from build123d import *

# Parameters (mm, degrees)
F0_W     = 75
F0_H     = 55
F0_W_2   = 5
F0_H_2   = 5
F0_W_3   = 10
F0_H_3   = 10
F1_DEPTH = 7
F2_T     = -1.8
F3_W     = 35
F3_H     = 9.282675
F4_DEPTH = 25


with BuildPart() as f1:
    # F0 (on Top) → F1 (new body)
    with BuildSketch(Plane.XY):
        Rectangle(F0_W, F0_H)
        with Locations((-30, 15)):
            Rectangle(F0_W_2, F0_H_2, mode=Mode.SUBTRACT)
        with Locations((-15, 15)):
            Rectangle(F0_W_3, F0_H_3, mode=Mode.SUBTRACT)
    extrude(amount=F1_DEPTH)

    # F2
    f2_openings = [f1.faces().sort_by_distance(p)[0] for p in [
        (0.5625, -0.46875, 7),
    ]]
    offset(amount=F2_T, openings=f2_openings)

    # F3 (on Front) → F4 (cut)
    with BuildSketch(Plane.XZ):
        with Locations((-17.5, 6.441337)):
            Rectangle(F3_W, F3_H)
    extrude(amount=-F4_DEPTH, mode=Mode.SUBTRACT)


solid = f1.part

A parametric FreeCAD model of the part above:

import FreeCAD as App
import Part
import Sketcher

V = App.Vector
Q = App.Units.Quantity


def faces_at(feature, points):
    """Names of the faces that lie closest to the given points."""
    faces = feature.Shape.Faces
    near = lambda p: min(range(len(faces)), key=lambda i: faces[i].distToShape(Part.Vertex(*p))[0])
    return sorted({f"Face{near(p) + 1}" for p in points})


def add_polygon(sketch, points):
    """Adds a closed chain of lines whose ends are joined by coincident constraints."""
    first, n = sketch.GeometryCount, len(points)
    for a, b in zip(points, points[1:] + points[:1]):
        sketch.addGeometry(Part.LineSegment(App.Vector(*a, 0), App.Vector(*b, 0)), False)
    for i in range(n):
        sketch.addConstraint(Sketcher.Constraint("Coincident", first + i, 2, first + (i + 1) % n, 1))

doc = App.newDocument("Part")
body = doc.addObject("PartDesign::Body", "Body")

# Sketch on XY plane
sketch1 = doc.addObject("Sketcher::SketchObject", "Sketch")
body.addObject(sketch1)
sketch1.AttachmentSupport = (doc.XY_Plane, [""])
sketch1.MapMode = "FlatFace"
add_polygon(sketch1, [(-38, 28), (-38, -28), (38, -28), (38, 28)])  # lines 0-3
add_polygon(sketch1, [(-28, 12), (-32, 12), (-32, 18), (-28, 18)])  # lines 4-7
add_polygon(sketch1, [(-10, 10), (-20, 10), (-20, 20), (-10, 20)])  # lines 8-11
sketch1.addConstraint(Sketcher.Constraint("Vertical", 0))
sketch1.addConstraint(Sketcher.Constraint("Horizontal", 1))
sketch1.addConstraint(Sketcher.Constraint("Vertical", 2))
sketch1.addConstraint(Sketcher.Constraint("Horizontal", 3))
sketch1.addConstraint(Sketcher.Constraint("Horizontal", 4))
sketch1.addConstraint(Sketcher.Constraint("Vertical", 5))
sketch1.addConstraint(Sketcher.Constraint("Horizontal", 6))
sketch1.addConstraint(Sketcher.Constraint("Vertical", 7))
sketch1.addConstraint(Sketcher.Constraint("Horizontal", 8))
sketch1.addConstraint(Sketcher.Constraint("Vertical", 9))
sketch1.addConstraint(Sketcher.Constraint("Horizontal", 10))
sketch1.addConstraint(Sketcher.Constraint("Vertical", 11))
sketch1.addConstraint(Sketcher.Constraint("Symmetric", 0, 2, 2, 2, -1, 1))
sketch1.addConstraint(Sketcher.Constraint("Equal", 6, 5))
sketch1.addConstraint(Sketcher.Constraint("Equal", 10, 9))
sketch1.addConstraint(Sketcher.Constraint("DistanceX", 1, 1, 1, 2, Q("75 mm")))
sketch1.addConstraint(Sketcher.Constraint("DistanceX", 4, 2, 4, 1, Q("5 mm")))
sketch1.addConstraint(Sketcher.Constraint("DistanceX", 8, 2, 8, 1, Q("10 mm")))
sketch1.addConstraint(Sketcher.Constraint("DistanceY", 0, 2, 0, 1, Q("55 mm")))
sketch1.addConstraint(Sketcher.Constraint("DistanceX", 8, 2, -1, 1, Q("20 mm")))
sketch1.addConstraint(Sketcher.Constraint("DistanceY", -1, 1, 8, 2, Q("10 mm")))
sketch1.addConstraint(Sketcher.Constraint("DistanceX", 3, 2, 4, 2, Q("5 mm")))
sketch1.addConstraint(Sketcher.Constraint("DistanceY", 4, 2, 3, 2, Q("15 mm")))
pad1 = doc.addObject("PartDesign::Pad", "Pad")
body.addObject(pad1)
pad1.Profile = sketch1
pad1.Length = 7
doc.recompute()

thickness = doc.addObject("PartDesign::Thickness", "Thickness")
body.addObject(thickness)
thickness.Base = (pad1, faces_at(pad1, [(0, 0, 7)]))
thickness.Value = 1.8
thickness.Reversed = True
thickness.Join = "Arc"

# Sketch on XZ plane
sketch2 = doc.addObject("Sketcher::SketchObject", "Sketch001")
body.addObject(sketch2)
sketch2.AttachmentSupport = (doc.XZ_Plane, [""])
sketch2.MapMode = "FlatFace"
add_polygon(sketch2, [(-35, 11), (-35, 2), (0, 2), (0, 11)])  # lines 0-3
sketch2.addConstraint(Sketcher.Constraint("Vertical", 0))
sketch2.addConstraint(Sketcher.Constraint("Horizontal", 1))
sketch2.addConstraint(Sketcher.Constraint("Vertical", 2))
sketch2.addConstraint(Sketcher.Constraint("Horizontal", 3))
sketch2.addConstraint(Sketcher.Constraint("PointOnObject", 1, 2, -2))
sketch2.addConstraint(Sketcher.Constraint("DistanceX", 1, 1, 1, 2, Q("35 mm")))
sketch2.addConstraint(Sketcher.Constraint("DistanceY", -1, 1, 0, 2, Q("1.799999 mm")))
sketch2.addConstraint(Sketcher.Constraint("DistanceY", 0, 2, 0, 1, Q("9.282675 mm")))
pocket1 = doc.addObject("PartDesign::Pocket", "Pocket")
body.addObject(pocket1)
pocket1.Profile = sketch2
pocket1.Length = 25

doc.recompute()
